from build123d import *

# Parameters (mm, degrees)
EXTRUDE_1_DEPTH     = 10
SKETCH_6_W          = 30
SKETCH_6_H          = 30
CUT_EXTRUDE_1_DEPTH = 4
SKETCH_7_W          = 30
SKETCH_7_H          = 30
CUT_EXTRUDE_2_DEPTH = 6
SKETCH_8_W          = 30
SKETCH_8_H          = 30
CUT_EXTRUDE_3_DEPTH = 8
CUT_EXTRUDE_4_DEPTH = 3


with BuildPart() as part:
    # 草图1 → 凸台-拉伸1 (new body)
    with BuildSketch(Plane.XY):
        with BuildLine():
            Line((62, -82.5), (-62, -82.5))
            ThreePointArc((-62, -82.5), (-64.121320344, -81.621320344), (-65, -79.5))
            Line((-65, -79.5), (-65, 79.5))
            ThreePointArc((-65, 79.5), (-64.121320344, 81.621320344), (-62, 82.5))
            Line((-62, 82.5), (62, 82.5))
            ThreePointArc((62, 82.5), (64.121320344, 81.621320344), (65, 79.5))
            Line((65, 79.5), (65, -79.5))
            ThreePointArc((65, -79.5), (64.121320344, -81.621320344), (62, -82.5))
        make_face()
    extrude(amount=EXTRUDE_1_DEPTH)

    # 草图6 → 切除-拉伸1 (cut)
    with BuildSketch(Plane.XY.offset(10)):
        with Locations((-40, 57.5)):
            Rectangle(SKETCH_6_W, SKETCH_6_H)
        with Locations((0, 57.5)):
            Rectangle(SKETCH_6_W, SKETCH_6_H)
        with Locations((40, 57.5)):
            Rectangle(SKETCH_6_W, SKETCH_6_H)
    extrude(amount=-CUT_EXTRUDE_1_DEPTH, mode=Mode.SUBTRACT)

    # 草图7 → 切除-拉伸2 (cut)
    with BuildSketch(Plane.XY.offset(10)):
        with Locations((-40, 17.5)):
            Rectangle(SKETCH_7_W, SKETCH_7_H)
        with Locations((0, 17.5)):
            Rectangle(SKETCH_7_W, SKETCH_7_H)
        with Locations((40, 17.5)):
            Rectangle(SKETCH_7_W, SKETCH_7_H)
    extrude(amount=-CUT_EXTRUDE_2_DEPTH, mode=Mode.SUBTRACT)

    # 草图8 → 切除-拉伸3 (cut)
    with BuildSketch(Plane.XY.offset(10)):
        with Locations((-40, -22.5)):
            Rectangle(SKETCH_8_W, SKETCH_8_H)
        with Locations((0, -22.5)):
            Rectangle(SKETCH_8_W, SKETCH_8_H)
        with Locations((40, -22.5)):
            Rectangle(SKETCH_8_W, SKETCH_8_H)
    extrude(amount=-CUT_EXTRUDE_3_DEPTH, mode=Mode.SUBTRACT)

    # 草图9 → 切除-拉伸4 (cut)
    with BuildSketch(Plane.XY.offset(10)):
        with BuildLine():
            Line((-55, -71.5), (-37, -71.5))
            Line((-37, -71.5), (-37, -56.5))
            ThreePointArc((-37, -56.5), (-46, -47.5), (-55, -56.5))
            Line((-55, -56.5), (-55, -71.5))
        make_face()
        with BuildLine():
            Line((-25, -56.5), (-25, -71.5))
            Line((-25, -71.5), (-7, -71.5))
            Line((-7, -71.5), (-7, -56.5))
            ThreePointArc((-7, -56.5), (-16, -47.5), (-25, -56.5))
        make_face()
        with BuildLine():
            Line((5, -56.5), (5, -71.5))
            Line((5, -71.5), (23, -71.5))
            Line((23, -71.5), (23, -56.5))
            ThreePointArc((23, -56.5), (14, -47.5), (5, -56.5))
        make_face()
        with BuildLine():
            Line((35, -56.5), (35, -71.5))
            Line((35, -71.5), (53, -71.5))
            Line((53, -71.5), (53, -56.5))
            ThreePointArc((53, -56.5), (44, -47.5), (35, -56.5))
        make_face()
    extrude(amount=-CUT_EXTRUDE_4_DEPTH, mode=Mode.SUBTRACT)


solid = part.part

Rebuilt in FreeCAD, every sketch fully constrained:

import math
import FreeCAD as App
import Part
import Sketcher

V = App.Vector


def add_polygon(sketch, points):
    """Adds a closed chain of lines whose ends are joined by coincident constraints."""
    first, n = sketch.GeometryCount, len(points)
    for a, b in zip(points, points[1:] + points[:1]):
        sketch.addGeometry(Part.LineSegment(App.Vector(*a, 0), App.Vector(*b, 0)), False)
    for i in range(n):
        sketch.addConstraint(Sketcher.Constraint("Coincident", first + i, 2, first + (i + 1) % n, 1))

doc = App.newDocument("Part")
params = doc.addObject("Spreadsheet::Sheet", "Params")
for row, (alias, value) in enumerate([
    ("sketch1_radius", "3 mm"),
    ("sketch1_width", "124 mm"),
    ("sketch1_height", "159 mm"),
    ("pad1_length", "10 mm"),
    ("sketch2_width", "30 mm"),
    ("pocket1_length", "4 mm"),
    ("sketch3_width", "30 mm"),
    ("pocket2_length", "6 mm"),
    ("sketch4_width", "30 mm"),
    ("pocket3_length", "8 mm"),
    ("sketch5_radius", "9 mm"),
    ("sketch5_height", "15 mm"),
    ("pocket4_length", "3 mm"),
], start=1):
    params.set(f"A{row}", alias)
    params.set(f"B{row}", "=" + value)
    params.setAlias(f"B{row}", alias)

body = doc.addObject("PartDesign::Body", "Body")

# Sketch on XY plane
sketch1 = body.newObject("Sketcher::SketchObject", "Sketch")
sketch1.AttachmentSupport = (doc.getObject("XY_Plane"), [""])
sketch1.MapMode = "FlatFace"
sketch1.addGeometry([
    Part.LineSegment(V(-62, -82.5, 0), V(62, -82.5, 0)),  # 0
    Part.ArcOfCircle(Part.Circle(V(62, -79.5, 0), V(0, 0, 1), 3), math.radians(-90), math.radians(0)),  # 1
    Part.LineSegment(V(65, -79.5, 0), V(65, 79.5, 0)),  # 2
    Part.ArcOfCircle(Part.Circle(V(62, 79.5, 0), V(0, 0, 1), 3), math.radians(0), math.radians(90)),  # 3
    Part.LineSegment(V(62, 82.5, 0), V(-62, 82.5, 0)),  # 4
    Part.ArcOfCircle(Part.Circle(V(-62, 79.5, 0), V(0, 0, 1), 3), math.radians(90), math.radians(180)),  # 5
    Part.LineSegment(V(-65, 79.5, 0), V(-65, -79.5, 0)),  # 6
    Part.ArcOfCircle(Part.Circle(V(-62, -79.5, 0), V(0, 0, 1), 3), math.radians(180), math.radians(270)),  # 7
], False)
sketch1.addConstraint([
    Sketcher.Constraint("Tangent", 0, 2, 1, 1),
    Sketcher.Constraint("Tangent", 1, 2, 2, 1),
    Sketcher.Constraint("Tangent", 2, 2, 3, 1),
    Sketcher.Constraint("Tangent", 3, 2, 4, 1),
    Sketcher.Constraint("Tangent", 4, 2, 5, 1),
    Sketcher.Constraint("Tangent", 5, 2, 6, 1),
    Sketcher.Constraint("Tangent", 6, 2, 7, 1),
    Sketcher.Constraint("Tangent", 7, 2, 0, 1),
    Sketcher.Constraint("Horizontal", 0),
    Sketcher.Constraint("Vertical", 2),
    Sketcher.Constraint("Horizontal", 4),
    Sketcher.Constraint("Vertical", 6),
    Sketcher.Constraint("Equal", 1, 3),
    Sketcher.Constraint("Equal", 3, 5),
    Sketcher.Constraint("Equal", 5, 7),
    Sketcher.Constraint("Symmetric", 1, 3, 5, 3, -1, 1),
    Sketcher.Constraint("Radius", 1, 3.0),
    Sketcher.Constraint("DistanceX", 0, 1, 0, 2, 124.0),
    Sketcher.Constraint("DistanceY", 2, 1, 2, 2, 159.0),
])
sketch1.setExpression("Constraints[16]", "Params.sketch1_radius")
sketch1.setExpression("Constraints[17]", "Params.sketch1_width")
sketch1.setExpression("Constraints[18]", "Params.sketch1_height")
pad1 = body.newObject("PartDesign::Pad", "Pad")
pad1.Profile = sketch1
pad1.setExpression("Length", "Params.pad1_length")

# Sketch on XY plane
sketch2 = body.newObject("Sketcher::SketchObject", "Sketch001")
sketch2.AttachmentSupport = (doc.getObject("XY_Plane"), [""])
sketch2.MapMode = "FlatFace"
sketch2.AttachmentOffset = App.Placement(V(0, 0, 10), App.Rotation())
add_polygon(sketch2, [(-55, 72.5), (-55, 42.5), (-25, 42.5), (-25, 72.5)])  # lines 0-3
add_polygon(sketch2, [(-15, 72.5), (-15, 42.5), (15, 42.5), (15, 72.5)])  # lines 4-7
add_polygon(sketch2, [(25, 72.5), (25, 42.5), (55, 42.5), (55, 72.5)])  # lines 8-11
sketch2.addConstraint([
    Sketcher.Constraint("Vertical", 0),
    Sketcher.Constraint("Horizontal", 1),
    Sketcher.Constraint("Vertical", 2),
    Sketcher.Constraint("Horizontal", 3),
    Sketcher.Constraint("Vertical", 4),
    Sketcher.Constraint("Horizontal", 5),
    Sketcher.Constraint("Vertical", 6),
    Sketcher.Constraint("Horizontal", 7),
    Sketcher.Constraint("Vertical", 8),
    Sketcher.Constraint("Horizontal", 9),
    Sketcher.Constraint("Vertical", 10),
    Sketcher.Constraint("Horizontal", 11),
    Sketcher.Constraint("Symmetric", 1, 2, 8, 2, -2),
    Sketcher.Constraint("Symmetric", 3, 2, 10, 2, -2),
    Sketcher.Constraint("Horizontal", 1, 2, 4, 2),
    Sketcher.Constraint("Horizontal", 3, 2, 6, 2),
    Sketcher.Constraint("Equal", 3, 5),
    Sketcher.Constraint("Equal", 11, 0),
    Sketcher.Constraint("DistanceX", 1, 1, 1, 2, 30.0),
    Sketcher.Constraint("DistanceX", 0, 2, -1, 1, 55.0),
    Sketcher.Constraint("DistanceX", 4, 2, -1, 1, 15.0),
    Sketcher.Constraint("DistanceY", -1, 1, 0, 2, 42.5),
])
sketch2.setExpression("Constraints[30]", "Params.sketch2_width")
pocket1 = body.newObject("PartDesign::Pocket", "Pocket")
pocket1.Profile = sketch2
pocket1.setExpression("Length", "Params.pocket1_length")

# Sketch on XY plane
sketch3 = body.newObject("Sketcher::SketchObject", "Sketch002")
sketch3.AttachmentSupport = (doc.getObject("XY_Plane"), [""])
sketch3.MapMode = "FlatFace"
sketch3.AttachmentOffset = App.Placement(V(0, 0, 10), App.Rotation())
add_polygon(sketch3, [(-55, 32.5), (-55, 2.5), (-25, 2.5), (-25, 32.5)])  # lines 0-3
add_polygon(sketch3, [(-15, 32.5), (-15, 2.5), (15, 2.5), (15, 32.5)])  # lines 4-7
add_polygon(sketch3, [(25, 32.5), (25, 2.5), (55, 2.5), (55, 32.5)])  # lines 8-11
sketch3.addConstraint([
    Sketcher.Constraint("Vertical", 0),
    Sketcher.Constraint("Horizontal", 1),
    Sketcher.Constraint("Vertical", 2),
    Sketcher.Constraint("Horizontal", 3),
    Sketcher.Constraint("Vertical", 4),
    Sketcher.Constraint("Horizontal", 5),
    Sketcher.Constraint("Vertical", 6),
    Sketcher.Constraint("Horizontal", 7),
    Sketcher.Constraint("Vertical", 8),
    Sketcher.Constraint("Horizontal", 9),
    Sketcher.Constraint("Vertical", 10),
    Sketcher.Constraint("Horizontal", 11),
    Sketcher.Constraint("Symmetric", 1, 2, 8, 2, -2),
    Sketcher.Constraint("Symmetric", 3, 2, 10, 2, -2),
    Sketcher.Constraint("Horizontal", 1, 2, 4, 2),
    Sketcher.Constraint("Horizontal", 3, 2, 6, 2),
    Sketcher.Constraint("Equal", 3, 5),
    Sketcher.Constraint("Equal", 11, 0),
    Sketcher.Constraint("DistanceX", 1, 1, 1, 2, 30.0),
    Sketcher.Constraint("DistanceX", 0, 2, -1, 1, 55.0),
    Sketcher.Constraint("DistanceX", 4, 2, -1, 1, 15.0),
    Sketcher.Constraint("DistanceY", -1, 1, 0, 2, 2.5),
])
sketch3.setExpression("Constraints[30]", "Params.sketch3_width")
pocket2 = body.newObject("PartDesign::Pocket", "Pocket001")
pocket2.Profile = sketch3
pocket2.setExpression("Length", "Params.pocket2_length")

# Sketch on XY plane
sketch4 = body.newObject("Sketcher::SketchObject", "Sketch003")
sketch4.AttachmentSupport = (doc.getObject("XY_Plane"), [""])
sketch4.MapMode = "FlatFace"
sketch4.AttachmentOffset = App.Placement(V(0, 0, 10), App.Rotation())
add_polygon(sketch4, [(-55, -7.5), (-55, -37.5), (-25, -37.5), (-25, -7.5)])  # lines 0-3
add_polygon(sketch4, [(-15, -7.5), (-15, -37.5), (15, -37.5), (15, -7.5)])  # lines 4-7
add_polygon(sketch4, [(25, -7.5), (25, -37.5), (55, -37.5), (55, -7.5)])  # lines 8-11
sketch4.addConstraint([
    Sketcher.Constraint("Vertical", 0),
    Sketcher.Constraint("Horizontal", 1),
    Sketcher.Constraint("Vertical", 2),
    Sketcher.Constraint("Horizontal", 3),
    Sketcher.Constraint("Vertical", 4),
    Sketcher.Constraint("Horizontal", 5),
    Sketcher.Constraint("Vertical", 6),
    Sketcher.Constraint("Horizontal", 7),
    Sketcher.Constraint("Vertical", 8),
    Sketcher.Constraint("Horizontal", 9),
    Sketcher.Constraint("Vertical", 10),
    Sketcher.Constraint("Horizontal", 11),
    Sketcher.Constraint("Symmetric", 1, 2, 8, 2, -2),
    Sketcher.Constraint("Symmetric", 3, 2, 10, 2, -2),
    Sketcher.Constraint("Horizontal", 1, 2, 4, 2),
    Sketcher.Constraint("Horizontal", 3, 2, 6, 2),
    Sketcher.Constraint("Equal", 3, 5),
    Sketcher.Constraint("Equal", 11, 0),
    Sketcher.Constraint("DistanceX", 1, 1, 1, 2, 30.0),
    Sketcher.Constraint("DistanceX", 0, 2, -1, 1, 55.0),
    Sketcher.Constraint("DistanceX", 4, 2, -1, 1, 15.0),
    Sketcher.Constraint("DistanceY", 0, 2, -1, 1, 37.5),
])
sketch4.setExpression("Constraints[30]", "Params.sketch4_width")
pocket3 = body.newObject("PartDesign::Pocket", "Pocket002")
pocket3.Profile = sketch4
pocket3.setExpression("Length", "Params.pocket3_length")

# Sketch on XY plane
sketch5 = body.newObject("Sketcher::SketchObject", "Sketch004")
sketch5.AttachmentSupport = (doc.getObject("XY_Plane"), [""])
sketch5.MapMode = "FlatFace"
sketch5.AttachmentOffset = App.Placement(V(0, 0, 10), App.Rotation())
sketch5.addGeometry([
    Part.LineSegment(V(-55, -71.5, 0), V(-37, -71.5, 0)),  # 0
    Part.LineSegment(V(-37, -71.5, 0), V(-37, -56.5, 0)),  # 1
    Part.ArcOfCircle(Part.Circle(V(-46, -56.5, 0), V(0, 0, 1), 9), math.radians(0), math.radians(180)),  # 2
    Part.LineSegment(V(-55, -56.5, 0), V(-55, -71.5, 0)),  # 3
    Part.LineSegment(V(-25, -56.5, 0), V(-25, -71.5, 0)),  # 4
    Part.LineSegment(V(-25, -71.5, 0), V(-7, -71.5, 0)),  # 5
    Part.LineSegment(V(-7, -71.5, 0), V(-7, -56.5, 0)),  # 6
    Part.ArcOfCircle(Part.Circle(V(-16, -56.5, 0), V(0, 0, 1), 9), math.radians(0), math.radians(180)),  # 7
    Part.LineSegment(V(5, -56.5, 0), V(5, -71.5, 0)),  # 8
    Part.LineSegment(V(5, -71.5, 0), V(23, -71.5, 0)),  # 9
    Part.LineSegment(V(23, -71.5, 0), V(23, -56.5, 0)),  # 10
    Part.ArcOfCircle(Part.Circle(V(14, -56.5, 0), V(0, 0, 1), 9), math.radians(0), math.radians(180)),  # 11
    Part.LineSegment(V(35, -56.5, 0), V(35, -71.5, 0)),  # 12
    Part.LineSegment(V(35, -71.5, 0), V(53, -71.5, 0)),  # 13
    Part.LineSegment(V(53, -71.5, 0), V(53, -56.5, 0)),  # 14
    Part.ArcOfCircle(Part.Circle(V(44, -56.5, 0), V(0, 0, 1), 9), math.radians(0), math.radians(180)),  # 15
], False)
sketch5.addConstraint([
    Sketcher.Constraint("Coincident", 0, 2, 1, 1),
    Sketcher.Constraint("Tangent", 1, 2, 2, 1),
    Sketcher.Constraint("Tangent", 2, 2, 3, 1),
    Sketcher.Constraint("Coincident", 3, 2, 0, 1),
    Sketcher.Constraint("Coincident", 4, 2, 5, 1),
    Sketcher.Constraint("Coincident", 5, 2, 6, 1),
    Sketcher.Constraint("Tangent", 6, 2, 7, 1),
    Sketcher.Constraint("Tangent", 7, 2, 4, 1),
    Sketcher.Constraint("Coincident", 8, 2, 9, 1),
    Sketcher.Constraint("Coincident", 9, 2, 10, 1),
    Sketcher.Constraint("Tangent", 10, 2, 11, 1),
    Sketcher.Constraint("Tangent", 11, 2, 8, 1),
    Sketcher.Constraint("Coincident", 12, 2, 13, 1),
    Sketcher.Constraint("Coincident", 13, 2, 14, 1),
    Sketcher.Constraint("Tangent", 14, 2, 15, 1),
    Sketcher.Constraint("Tangent", 15, 2, 12, 1),
    Sketcher.Constraint("Horizontal", 0),
    Sketcher.Constraint("Vertical", 1),
    Sketcher.Constraint("Vertical", 3),
    Sketcher.Constraint("Vertical", 4),
    Sketcher.Constraint("Horizontal", 5),
    Sketcher.Constraint("Vertical", 6),
    Sketcher.Constraint("Vertical", 8),
    Sketcher.Constraint("Horizontal", 9),
    Sketcher.Constraint("Vertical", 10),
    Sketcher.Constraint("Vertical", 12),
    Sketcher.Constraint("Horizontal", 13),
    Sketcher.Constraint("Vertical", 14),
    Sketcher.Constraint("Equal", 2, 7),
    Sketcher.Constraint("Equal", 7, 11),
    Sketcher.Constraint("Equal", 11, 15),
    Sketcher.Constraint("Horizontal", 2, 3, 7, 3),
    Sketcher.Constraint("Horizontal", 7, 3, 11, 3),
    Sketcher.Constraint("Horizontal", 11, 3, 15, 3),
    Sketcher.Constraint("Horizontal", 3, 2, 4, 2),
    Sketcher.Constraint("Horizontal", 5, 2, 8, 2),
    Sketcher.Constraint("Horizontal", 9, 2, 12, 2),
    Sketcher.Constraint("Radius", 2, 9.0),
    Sketcher.Constraint("DistanceY", 1, 1, 1, 2, 15.0),
    Sketcher.Constraint("DistanceX", 2, 3, -1, 1, 46.0),
    Sketcher.Constraint("DistanceX", 7, 3, -1, 1, 16.0),
    Sketcher.Constraint("DistanceX", -1, 1, 11, 3, 14.0),
    Sketcher.Constraint("DistanceX", -1, 1, 15, 3, 44.0),
    Sketcher.Constraint("DistanceY", 2, 3, -1, 1, 56.5),
])
sketch5.setExpression("Constraints[37]", "Params.sketch5_radius")
sketch5.setExpression("Constraints[38]", "Params.sketch5_height")
pocket4 = body.newObject("PartDesign::Pocket", "Pocket003")
pocket4.Profile = sketch5
pocket4.setExpression("Length", "Params.pocket4_length")

doc.recompute()
